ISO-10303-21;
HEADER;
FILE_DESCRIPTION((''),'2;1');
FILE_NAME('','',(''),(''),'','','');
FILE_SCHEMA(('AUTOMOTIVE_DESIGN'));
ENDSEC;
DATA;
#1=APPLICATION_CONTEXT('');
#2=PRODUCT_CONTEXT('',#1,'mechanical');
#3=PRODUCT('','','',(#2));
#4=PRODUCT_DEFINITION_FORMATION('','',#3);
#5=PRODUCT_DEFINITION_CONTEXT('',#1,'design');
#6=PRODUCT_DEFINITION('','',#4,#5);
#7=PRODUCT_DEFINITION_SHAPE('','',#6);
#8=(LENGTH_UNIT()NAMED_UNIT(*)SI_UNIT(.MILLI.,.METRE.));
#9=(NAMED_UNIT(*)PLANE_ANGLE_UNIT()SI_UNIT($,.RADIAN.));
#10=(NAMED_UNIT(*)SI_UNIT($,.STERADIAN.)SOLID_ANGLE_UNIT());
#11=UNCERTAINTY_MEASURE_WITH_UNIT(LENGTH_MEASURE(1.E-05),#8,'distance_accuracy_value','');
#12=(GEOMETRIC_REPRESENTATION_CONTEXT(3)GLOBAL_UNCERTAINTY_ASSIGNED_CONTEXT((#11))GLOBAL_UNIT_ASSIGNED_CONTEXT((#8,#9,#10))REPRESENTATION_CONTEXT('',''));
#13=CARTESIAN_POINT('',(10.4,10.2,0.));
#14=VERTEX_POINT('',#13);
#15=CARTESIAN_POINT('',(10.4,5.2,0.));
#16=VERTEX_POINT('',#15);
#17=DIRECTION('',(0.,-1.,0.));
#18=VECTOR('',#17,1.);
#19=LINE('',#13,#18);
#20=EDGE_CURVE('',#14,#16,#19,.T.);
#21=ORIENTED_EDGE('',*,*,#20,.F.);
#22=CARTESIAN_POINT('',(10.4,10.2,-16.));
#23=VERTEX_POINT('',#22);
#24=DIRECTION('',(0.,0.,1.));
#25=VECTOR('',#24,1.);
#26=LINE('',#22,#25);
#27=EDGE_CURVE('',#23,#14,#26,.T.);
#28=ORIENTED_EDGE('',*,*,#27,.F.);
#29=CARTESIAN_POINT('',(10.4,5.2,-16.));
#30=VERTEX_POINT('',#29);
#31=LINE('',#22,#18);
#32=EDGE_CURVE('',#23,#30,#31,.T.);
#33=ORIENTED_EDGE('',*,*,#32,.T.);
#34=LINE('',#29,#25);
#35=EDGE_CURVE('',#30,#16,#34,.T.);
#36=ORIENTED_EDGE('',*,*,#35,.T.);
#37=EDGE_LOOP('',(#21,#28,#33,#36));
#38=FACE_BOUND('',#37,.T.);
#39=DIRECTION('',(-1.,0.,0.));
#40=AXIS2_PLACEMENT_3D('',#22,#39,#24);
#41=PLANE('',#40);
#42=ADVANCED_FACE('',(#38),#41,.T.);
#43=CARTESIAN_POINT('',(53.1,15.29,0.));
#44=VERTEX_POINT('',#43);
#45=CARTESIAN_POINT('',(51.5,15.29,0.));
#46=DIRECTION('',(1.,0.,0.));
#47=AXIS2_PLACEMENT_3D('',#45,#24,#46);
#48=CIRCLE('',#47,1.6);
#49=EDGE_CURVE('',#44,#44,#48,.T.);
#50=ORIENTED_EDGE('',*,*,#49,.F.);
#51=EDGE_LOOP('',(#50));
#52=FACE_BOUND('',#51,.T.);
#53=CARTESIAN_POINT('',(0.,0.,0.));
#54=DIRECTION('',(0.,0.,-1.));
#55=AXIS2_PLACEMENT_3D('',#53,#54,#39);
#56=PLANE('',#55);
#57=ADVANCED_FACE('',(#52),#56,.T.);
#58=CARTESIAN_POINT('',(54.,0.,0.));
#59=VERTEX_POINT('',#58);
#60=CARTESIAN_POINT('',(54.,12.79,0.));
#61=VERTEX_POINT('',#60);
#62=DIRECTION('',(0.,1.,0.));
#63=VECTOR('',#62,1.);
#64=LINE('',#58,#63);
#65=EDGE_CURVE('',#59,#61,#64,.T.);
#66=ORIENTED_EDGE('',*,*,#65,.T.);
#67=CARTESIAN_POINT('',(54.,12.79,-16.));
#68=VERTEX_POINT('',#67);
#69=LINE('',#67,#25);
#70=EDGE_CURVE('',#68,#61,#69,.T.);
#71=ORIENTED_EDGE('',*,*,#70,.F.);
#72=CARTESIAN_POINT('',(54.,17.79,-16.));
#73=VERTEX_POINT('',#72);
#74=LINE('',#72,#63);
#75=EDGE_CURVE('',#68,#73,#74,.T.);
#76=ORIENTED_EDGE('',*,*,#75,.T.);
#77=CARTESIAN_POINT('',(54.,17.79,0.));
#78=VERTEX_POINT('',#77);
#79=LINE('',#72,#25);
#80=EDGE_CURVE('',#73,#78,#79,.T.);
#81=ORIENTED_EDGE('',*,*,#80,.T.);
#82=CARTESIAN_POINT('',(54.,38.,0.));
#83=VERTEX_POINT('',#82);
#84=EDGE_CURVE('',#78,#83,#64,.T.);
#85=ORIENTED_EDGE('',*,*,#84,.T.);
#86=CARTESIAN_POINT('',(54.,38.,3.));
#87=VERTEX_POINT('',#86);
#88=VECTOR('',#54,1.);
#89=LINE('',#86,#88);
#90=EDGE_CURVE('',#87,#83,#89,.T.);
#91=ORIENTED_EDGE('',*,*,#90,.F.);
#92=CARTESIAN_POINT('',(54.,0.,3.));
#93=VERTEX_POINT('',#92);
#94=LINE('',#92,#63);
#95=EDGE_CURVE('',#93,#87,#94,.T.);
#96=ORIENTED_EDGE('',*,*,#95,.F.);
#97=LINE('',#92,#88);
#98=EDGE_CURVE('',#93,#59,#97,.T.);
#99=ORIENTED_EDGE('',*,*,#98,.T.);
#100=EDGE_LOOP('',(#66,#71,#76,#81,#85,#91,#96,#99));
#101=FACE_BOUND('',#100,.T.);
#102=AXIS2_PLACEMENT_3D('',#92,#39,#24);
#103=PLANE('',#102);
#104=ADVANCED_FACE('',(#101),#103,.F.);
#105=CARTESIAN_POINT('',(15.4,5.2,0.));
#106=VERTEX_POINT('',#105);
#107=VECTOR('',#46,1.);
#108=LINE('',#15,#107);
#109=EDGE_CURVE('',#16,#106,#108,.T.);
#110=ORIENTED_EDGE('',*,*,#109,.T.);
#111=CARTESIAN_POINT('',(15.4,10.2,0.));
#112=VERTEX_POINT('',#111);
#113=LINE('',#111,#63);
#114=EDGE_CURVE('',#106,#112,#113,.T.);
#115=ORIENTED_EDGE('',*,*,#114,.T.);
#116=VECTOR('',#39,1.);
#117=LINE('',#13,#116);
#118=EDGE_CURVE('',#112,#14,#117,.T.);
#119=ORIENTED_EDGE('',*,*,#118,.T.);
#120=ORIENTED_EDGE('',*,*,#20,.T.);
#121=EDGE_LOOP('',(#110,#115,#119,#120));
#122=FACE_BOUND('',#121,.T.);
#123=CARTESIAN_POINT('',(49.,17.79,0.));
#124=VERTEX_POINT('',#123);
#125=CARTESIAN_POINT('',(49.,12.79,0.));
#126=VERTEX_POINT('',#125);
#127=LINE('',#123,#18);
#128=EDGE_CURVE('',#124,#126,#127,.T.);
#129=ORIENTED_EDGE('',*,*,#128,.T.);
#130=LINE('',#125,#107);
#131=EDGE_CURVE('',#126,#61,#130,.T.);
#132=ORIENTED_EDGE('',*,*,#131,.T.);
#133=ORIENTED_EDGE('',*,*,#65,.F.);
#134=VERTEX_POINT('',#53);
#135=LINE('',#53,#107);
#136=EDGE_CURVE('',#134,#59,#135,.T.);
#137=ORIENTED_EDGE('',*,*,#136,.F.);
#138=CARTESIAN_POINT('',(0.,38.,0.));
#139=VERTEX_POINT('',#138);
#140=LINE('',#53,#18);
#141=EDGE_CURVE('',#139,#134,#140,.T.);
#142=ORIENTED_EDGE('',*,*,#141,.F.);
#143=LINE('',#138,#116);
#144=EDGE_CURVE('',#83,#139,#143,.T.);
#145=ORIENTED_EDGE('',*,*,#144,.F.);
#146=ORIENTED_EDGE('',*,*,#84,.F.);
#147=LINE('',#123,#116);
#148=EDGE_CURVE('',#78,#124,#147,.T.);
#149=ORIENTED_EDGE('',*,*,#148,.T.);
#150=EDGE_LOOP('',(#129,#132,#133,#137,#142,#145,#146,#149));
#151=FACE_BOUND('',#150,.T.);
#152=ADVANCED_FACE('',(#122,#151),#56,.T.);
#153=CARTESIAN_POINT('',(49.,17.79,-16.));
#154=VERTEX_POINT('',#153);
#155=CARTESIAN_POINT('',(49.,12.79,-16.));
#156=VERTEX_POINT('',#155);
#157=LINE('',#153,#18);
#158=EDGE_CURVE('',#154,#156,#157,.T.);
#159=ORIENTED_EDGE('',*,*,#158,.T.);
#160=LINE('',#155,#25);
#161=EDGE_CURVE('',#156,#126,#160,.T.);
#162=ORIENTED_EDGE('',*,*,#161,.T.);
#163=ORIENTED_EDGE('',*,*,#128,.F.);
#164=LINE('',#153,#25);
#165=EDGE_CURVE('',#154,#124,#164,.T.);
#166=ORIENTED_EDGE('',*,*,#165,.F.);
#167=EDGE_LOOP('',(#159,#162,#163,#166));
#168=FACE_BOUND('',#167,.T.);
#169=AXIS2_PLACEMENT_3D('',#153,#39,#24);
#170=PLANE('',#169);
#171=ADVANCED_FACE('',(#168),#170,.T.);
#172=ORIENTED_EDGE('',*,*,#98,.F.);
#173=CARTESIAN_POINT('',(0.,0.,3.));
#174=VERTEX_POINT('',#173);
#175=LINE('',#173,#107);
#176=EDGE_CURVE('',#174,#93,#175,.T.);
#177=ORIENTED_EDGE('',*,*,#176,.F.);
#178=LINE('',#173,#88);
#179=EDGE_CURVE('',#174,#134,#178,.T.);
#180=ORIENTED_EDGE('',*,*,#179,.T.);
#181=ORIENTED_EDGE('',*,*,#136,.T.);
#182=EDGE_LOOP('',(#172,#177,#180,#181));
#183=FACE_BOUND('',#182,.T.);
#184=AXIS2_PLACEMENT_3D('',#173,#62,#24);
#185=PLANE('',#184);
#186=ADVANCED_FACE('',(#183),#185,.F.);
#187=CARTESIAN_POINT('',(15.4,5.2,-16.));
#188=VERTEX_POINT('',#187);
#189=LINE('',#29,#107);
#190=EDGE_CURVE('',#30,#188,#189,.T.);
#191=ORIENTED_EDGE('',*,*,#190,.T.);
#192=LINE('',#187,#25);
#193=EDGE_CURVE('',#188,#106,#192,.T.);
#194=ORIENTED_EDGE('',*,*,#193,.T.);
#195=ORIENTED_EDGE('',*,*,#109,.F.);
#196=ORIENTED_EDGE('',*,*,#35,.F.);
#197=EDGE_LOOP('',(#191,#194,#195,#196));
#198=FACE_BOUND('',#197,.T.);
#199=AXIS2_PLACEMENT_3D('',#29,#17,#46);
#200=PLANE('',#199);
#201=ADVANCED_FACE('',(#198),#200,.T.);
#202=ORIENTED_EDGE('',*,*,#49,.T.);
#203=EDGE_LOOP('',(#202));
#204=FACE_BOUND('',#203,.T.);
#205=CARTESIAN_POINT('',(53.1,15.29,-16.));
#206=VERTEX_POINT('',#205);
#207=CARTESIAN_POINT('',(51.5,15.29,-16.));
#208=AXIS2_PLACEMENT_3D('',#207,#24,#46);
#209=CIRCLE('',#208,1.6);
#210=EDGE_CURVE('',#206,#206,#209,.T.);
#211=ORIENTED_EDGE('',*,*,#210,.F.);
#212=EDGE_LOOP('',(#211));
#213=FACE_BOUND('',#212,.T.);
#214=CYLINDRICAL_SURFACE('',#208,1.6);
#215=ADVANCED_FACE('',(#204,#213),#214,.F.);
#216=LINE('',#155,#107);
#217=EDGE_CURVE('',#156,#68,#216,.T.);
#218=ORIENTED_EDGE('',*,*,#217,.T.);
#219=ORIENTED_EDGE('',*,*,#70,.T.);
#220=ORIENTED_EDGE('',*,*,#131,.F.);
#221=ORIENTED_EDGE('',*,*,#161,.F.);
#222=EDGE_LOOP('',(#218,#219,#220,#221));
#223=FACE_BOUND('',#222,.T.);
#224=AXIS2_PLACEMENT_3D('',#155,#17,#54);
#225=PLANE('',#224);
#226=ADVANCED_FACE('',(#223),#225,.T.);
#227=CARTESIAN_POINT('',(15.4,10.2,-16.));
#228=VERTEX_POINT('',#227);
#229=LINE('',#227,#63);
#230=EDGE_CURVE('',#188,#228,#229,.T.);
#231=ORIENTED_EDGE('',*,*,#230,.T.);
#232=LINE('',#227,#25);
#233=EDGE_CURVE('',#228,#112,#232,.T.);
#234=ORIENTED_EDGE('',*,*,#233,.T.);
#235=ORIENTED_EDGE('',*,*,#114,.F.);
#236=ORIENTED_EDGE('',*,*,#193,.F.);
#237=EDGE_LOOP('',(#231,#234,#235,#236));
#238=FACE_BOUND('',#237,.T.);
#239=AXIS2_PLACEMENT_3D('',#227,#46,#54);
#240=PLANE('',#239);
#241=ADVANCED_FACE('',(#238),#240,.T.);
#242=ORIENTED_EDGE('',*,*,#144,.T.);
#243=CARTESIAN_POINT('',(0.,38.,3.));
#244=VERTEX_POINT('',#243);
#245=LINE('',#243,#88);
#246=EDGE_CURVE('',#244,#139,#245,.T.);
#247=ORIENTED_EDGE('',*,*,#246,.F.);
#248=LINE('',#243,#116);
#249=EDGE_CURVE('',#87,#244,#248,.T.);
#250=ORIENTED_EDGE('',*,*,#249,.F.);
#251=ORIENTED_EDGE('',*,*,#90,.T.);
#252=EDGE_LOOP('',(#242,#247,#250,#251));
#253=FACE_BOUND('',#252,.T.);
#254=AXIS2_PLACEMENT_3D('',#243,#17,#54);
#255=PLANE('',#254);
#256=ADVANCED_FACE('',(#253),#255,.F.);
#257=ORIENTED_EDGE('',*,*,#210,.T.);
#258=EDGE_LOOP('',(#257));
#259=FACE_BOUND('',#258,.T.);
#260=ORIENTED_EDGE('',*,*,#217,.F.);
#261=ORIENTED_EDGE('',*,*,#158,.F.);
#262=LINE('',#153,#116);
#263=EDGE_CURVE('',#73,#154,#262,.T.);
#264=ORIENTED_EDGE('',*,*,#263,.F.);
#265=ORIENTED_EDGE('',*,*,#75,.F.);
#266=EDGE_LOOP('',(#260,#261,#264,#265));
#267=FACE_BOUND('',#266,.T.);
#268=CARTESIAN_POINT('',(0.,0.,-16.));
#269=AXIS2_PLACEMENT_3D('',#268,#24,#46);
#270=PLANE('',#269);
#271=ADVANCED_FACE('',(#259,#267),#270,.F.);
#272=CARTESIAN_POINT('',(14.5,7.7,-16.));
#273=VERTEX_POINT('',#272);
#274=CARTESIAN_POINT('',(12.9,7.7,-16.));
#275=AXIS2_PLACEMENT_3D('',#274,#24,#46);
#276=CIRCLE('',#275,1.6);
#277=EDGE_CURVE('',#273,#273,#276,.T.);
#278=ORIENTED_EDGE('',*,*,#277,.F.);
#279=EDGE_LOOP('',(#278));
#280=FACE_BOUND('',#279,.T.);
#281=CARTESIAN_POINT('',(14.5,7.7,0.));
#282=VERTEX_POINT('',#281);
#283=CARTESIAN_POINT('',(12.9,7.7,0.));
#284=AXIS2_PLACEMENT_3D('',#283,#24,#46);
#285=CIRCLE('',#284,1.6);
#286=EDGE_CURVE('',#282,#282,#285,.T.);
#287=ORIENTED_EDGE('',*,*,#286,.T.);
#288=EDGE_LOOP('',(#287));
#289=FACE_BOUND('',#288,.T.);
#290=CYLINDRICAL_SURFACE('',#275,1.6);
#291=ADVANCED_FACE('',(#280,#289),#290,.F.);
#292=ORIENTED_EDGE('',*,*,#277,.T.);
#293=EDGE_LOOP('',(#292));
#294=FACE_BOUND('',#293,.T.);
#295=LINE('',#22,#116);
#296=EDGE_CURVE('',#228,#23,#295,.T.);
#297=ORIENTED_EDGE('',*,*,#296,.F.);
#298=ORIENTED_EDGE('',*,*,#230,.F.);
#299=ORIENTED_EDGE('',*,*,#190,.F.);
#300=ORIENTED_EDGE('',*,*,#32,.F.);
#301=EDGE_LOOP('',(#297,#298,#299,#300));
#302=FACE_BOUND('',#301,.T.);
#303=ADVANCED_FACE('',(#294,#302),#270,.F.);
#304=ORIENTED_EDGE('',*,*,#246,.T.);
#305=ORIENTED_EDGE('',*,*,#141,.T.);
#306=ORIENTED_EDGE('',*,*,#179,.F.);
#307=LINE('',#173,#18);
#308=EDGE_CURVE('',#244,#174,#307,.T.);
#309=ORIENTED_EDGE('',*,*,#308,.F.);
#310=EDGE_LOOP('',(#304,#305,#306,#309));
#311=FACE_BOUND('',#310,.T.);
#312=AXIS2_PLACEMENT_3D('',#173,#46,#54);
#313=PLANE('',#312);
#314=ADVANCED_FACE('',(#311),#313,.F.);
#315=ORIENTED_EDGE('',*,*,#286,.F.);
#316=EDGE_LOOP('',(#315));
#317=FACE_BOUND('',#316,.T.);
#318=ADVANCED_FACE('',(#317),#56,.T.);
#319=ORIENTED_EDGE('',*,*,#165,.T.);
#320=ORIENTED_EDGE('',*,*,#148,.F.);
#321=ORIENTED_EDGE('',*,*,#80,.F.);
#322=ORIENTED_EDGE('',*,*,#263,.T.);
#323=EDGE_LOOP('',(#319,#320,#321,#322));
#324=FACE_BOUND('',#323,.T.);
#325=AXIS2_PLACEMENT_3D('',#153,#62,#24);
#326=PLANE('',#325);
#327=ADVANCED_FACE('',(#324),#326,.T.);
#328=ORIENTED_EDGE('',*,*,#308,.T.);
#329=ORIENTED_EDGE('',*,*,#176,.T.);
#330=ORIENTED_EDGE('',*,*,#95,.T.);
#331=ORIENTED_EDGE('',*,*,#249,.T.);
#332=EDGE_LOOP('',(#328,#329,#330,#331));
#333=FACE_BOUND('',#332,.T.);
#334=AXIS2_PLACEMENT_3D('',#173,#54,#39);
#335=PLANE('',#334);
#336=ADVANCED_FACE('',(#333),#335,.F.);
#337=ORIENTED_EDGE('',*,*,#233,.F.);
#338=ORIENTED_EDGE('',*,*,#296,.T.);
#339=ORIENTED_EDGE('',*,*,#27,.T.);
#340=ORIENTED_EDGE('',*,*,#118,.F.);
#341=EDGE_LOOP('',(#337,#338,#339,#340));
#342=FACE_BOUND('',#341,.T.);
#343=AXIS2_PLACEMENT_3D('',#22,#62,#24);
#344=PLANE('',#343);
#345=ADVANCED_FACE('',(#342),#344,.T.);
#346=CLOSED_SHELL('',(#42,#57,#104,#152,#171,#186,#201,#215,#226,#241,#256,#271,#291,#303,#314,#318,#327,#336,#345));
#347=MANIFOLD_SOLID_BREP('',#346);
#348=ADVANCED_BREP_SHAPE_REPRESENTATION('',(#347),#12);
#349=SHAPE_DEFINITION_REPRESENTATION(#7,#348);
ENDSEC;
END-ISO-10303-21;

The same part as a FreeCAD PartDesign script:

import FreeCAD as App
import Part
import Sketcher

V = App.Vector

doc = App.newDocument("Part")
body = doc.addObject("PartDesign::Body", "Body")

# Sketch on XY plane
sketch1 = doc.addObject("Sketcher::SketchObject", "Sketch")
body.addObject(sketch1)
sketch1.AttachmentSupport = (doc.XY_Plane, [""])
sketch1.MapMode = "FlatFace"
sketch1.addGeometry([
    Part.LineSegment(V(0, 38, 0), V(0, 0, 0)),
    Part.LineSegment(V(0, 0, 0), V(54, 0, 0)),
    Part.LineSegment(V(54, 0, 0), V(54, 38, 0)),
    Part.LineSegment(V(54, 38, 0), V(0, 38, 0)),
], False)
sketch1.addConstraint([
    Sketcher.Constraint("Coincident", 0, 2, 1, 1),
    Sketcher.Constraint("Coincident", 1, 2, 2, 1),
    Sketcher.Constraint("Coincident", 2, 2, 3, 1),
    Sketcher.Constraint("Coincident", 3, 2, 0, 1),
    Sketcher.Constraint("Vertical", 0),
    Sketcher.Constraint("Horizontal", 1),
    Sketcher.Constraint("Vertical", 2),
    Sketcher.Constraint("Horizontal", 3),
    Sketcher.Constraint("Coincident", 0, 2, -1, 1),
    Sketcher.Constraint("DistanceX", 1, 1, 1, 2, 54.0),
    Sketcher.Constraint("DistanceY", 0, 2, 0, 1, 38.0),
])
pad1 = doc.addObject("PartDesign::Pad", "Pad")
body.addObject(pad1)
pad1.Profile = sketch1
pad1.Length = 3

# Sketch on XY plane
sketch2 = doc.addObject("Sketcher::SketchObject", "Sketch001")
body.addObject(sketch2)
sketch2.AttachmentSupport = (doc.XY_Plane, [""])
sketch2.MapMode = "FlatFace"
sketch2.addGeometry([
    Part.LineSegment(V(10.4, 10.2, 0), V(10.4, 5.2, 0)),  # 0
    Part.LineSegment(V(10.4, 5.2, 0), V(15.4, 5.2, 0)),  # 1
    Part.LineSegment(V(15.4, 5.2, 0), V(15.4, 10.2, 0)),  # 2
    Part.LineSegment(V(15.4, 10.2, 0), V(10.4, 10.2, 0)),  # 3
    Part.Circle(V(12.9, 7.7, 0), V(0, 0, 1), 1.6),  # 4
    Part.LineSegment(V(49, 17.79, 0), V(49, 12.79, 0)),  # 5
    Part.LineSegment(V(49, 12.79, 0), V(54, 12.79, 0)),  # 6
    Part.LineSegment(V(54, 12.79, 0), V(54, 17.79, 0)),  # 7
    Part.LineSegment(V(54, 17.79, 0), V(49, 17.79, 0)),  # 8
    Part.Circle(V(51.5, 15.29, 0), V(0, 0, 1), 1.6),  # 9
], False)
sketch2.addConstraint([
    Sketcher.Constraint("Coincident", 0, 2, 1, 1),
    Sketcher.Constraint("Coincident", 1, 2, 2, 1),
    Sketcher.Constraint("Coincident", 2, 2, 3, 1),
    Sketcher.Constraint("Coincident", 3, 2, 0, 1),
    Sketcher.Constraint("Coincident", 5, 2, 6, 1),
    Sketcher.Constraint("Coincident", 6, 2, 7, 1),
    Sketcher.Constraint("Coincident", 7, 2, 8, 1),
    Sketcher.Constraint("Coincident", 8, 2, 5, 1),
    Sketcher.Constraint("Vertical", 0),
    Sketcher.Constraint("Horizontal", 1),
    Sketcher.Constraint("Vertical", 2),
    Sketcher.Constraint("Horizontal", 3),
    Sketcher.Constraint("Vertical", 5),
    Sketcher.Constraint("Horizontal", 6),
    Sketcher.Constraint("Vertical", 7),
    Sketcher.Constraint("Horizontal", 8),
    Sketcher.Constraint("Equal", 4, 9),
    Sketcher.Constraint("Equal", 3, 6),
    Sketcher.Constraint("Equal", 8, 0),
    Sketcher.Constraint("Equal", 2, 5),
    Sketcher.Constraint("Diameter", 4, 3.2),
    Sketcher.Constraint("DistanceX", 1, 1, 1, 2, 5.0),
    Sketcher.Constraint("DistanceX", -1, 1, 5, 2, 49.0),
    Sketcher.Constraint("DistanceX", -1, 1, 4, 3, 12.9),
    Sketcher.Constraint("DistanceY", -1, 1, 4, 3, 7.7),
    Sketcher.Constraint("DistanceX", -1, 1, 9, 3, 51.5),
    Sketcher.Constraint("DistanceX", -1, 1, 0, 2, 10.4),
    Sketcher.Constraint("DistanceY", -1, 1, 0, 2, 5.2),
    Sketcher.Constraint("DistanceY", 5, 2, 9, 3, 2.5),
    Sketcher.Constraint("DistanceY", -1, 1, 9, 3, 15.29),
])
pad2 = doc.addObject("PartDesign::Pad", "Pad001")
body.addObject(pad2)
pad2.Profile = sketch2
pad2.Length = 16
pad2.Reversed = True

doc.recompute()
